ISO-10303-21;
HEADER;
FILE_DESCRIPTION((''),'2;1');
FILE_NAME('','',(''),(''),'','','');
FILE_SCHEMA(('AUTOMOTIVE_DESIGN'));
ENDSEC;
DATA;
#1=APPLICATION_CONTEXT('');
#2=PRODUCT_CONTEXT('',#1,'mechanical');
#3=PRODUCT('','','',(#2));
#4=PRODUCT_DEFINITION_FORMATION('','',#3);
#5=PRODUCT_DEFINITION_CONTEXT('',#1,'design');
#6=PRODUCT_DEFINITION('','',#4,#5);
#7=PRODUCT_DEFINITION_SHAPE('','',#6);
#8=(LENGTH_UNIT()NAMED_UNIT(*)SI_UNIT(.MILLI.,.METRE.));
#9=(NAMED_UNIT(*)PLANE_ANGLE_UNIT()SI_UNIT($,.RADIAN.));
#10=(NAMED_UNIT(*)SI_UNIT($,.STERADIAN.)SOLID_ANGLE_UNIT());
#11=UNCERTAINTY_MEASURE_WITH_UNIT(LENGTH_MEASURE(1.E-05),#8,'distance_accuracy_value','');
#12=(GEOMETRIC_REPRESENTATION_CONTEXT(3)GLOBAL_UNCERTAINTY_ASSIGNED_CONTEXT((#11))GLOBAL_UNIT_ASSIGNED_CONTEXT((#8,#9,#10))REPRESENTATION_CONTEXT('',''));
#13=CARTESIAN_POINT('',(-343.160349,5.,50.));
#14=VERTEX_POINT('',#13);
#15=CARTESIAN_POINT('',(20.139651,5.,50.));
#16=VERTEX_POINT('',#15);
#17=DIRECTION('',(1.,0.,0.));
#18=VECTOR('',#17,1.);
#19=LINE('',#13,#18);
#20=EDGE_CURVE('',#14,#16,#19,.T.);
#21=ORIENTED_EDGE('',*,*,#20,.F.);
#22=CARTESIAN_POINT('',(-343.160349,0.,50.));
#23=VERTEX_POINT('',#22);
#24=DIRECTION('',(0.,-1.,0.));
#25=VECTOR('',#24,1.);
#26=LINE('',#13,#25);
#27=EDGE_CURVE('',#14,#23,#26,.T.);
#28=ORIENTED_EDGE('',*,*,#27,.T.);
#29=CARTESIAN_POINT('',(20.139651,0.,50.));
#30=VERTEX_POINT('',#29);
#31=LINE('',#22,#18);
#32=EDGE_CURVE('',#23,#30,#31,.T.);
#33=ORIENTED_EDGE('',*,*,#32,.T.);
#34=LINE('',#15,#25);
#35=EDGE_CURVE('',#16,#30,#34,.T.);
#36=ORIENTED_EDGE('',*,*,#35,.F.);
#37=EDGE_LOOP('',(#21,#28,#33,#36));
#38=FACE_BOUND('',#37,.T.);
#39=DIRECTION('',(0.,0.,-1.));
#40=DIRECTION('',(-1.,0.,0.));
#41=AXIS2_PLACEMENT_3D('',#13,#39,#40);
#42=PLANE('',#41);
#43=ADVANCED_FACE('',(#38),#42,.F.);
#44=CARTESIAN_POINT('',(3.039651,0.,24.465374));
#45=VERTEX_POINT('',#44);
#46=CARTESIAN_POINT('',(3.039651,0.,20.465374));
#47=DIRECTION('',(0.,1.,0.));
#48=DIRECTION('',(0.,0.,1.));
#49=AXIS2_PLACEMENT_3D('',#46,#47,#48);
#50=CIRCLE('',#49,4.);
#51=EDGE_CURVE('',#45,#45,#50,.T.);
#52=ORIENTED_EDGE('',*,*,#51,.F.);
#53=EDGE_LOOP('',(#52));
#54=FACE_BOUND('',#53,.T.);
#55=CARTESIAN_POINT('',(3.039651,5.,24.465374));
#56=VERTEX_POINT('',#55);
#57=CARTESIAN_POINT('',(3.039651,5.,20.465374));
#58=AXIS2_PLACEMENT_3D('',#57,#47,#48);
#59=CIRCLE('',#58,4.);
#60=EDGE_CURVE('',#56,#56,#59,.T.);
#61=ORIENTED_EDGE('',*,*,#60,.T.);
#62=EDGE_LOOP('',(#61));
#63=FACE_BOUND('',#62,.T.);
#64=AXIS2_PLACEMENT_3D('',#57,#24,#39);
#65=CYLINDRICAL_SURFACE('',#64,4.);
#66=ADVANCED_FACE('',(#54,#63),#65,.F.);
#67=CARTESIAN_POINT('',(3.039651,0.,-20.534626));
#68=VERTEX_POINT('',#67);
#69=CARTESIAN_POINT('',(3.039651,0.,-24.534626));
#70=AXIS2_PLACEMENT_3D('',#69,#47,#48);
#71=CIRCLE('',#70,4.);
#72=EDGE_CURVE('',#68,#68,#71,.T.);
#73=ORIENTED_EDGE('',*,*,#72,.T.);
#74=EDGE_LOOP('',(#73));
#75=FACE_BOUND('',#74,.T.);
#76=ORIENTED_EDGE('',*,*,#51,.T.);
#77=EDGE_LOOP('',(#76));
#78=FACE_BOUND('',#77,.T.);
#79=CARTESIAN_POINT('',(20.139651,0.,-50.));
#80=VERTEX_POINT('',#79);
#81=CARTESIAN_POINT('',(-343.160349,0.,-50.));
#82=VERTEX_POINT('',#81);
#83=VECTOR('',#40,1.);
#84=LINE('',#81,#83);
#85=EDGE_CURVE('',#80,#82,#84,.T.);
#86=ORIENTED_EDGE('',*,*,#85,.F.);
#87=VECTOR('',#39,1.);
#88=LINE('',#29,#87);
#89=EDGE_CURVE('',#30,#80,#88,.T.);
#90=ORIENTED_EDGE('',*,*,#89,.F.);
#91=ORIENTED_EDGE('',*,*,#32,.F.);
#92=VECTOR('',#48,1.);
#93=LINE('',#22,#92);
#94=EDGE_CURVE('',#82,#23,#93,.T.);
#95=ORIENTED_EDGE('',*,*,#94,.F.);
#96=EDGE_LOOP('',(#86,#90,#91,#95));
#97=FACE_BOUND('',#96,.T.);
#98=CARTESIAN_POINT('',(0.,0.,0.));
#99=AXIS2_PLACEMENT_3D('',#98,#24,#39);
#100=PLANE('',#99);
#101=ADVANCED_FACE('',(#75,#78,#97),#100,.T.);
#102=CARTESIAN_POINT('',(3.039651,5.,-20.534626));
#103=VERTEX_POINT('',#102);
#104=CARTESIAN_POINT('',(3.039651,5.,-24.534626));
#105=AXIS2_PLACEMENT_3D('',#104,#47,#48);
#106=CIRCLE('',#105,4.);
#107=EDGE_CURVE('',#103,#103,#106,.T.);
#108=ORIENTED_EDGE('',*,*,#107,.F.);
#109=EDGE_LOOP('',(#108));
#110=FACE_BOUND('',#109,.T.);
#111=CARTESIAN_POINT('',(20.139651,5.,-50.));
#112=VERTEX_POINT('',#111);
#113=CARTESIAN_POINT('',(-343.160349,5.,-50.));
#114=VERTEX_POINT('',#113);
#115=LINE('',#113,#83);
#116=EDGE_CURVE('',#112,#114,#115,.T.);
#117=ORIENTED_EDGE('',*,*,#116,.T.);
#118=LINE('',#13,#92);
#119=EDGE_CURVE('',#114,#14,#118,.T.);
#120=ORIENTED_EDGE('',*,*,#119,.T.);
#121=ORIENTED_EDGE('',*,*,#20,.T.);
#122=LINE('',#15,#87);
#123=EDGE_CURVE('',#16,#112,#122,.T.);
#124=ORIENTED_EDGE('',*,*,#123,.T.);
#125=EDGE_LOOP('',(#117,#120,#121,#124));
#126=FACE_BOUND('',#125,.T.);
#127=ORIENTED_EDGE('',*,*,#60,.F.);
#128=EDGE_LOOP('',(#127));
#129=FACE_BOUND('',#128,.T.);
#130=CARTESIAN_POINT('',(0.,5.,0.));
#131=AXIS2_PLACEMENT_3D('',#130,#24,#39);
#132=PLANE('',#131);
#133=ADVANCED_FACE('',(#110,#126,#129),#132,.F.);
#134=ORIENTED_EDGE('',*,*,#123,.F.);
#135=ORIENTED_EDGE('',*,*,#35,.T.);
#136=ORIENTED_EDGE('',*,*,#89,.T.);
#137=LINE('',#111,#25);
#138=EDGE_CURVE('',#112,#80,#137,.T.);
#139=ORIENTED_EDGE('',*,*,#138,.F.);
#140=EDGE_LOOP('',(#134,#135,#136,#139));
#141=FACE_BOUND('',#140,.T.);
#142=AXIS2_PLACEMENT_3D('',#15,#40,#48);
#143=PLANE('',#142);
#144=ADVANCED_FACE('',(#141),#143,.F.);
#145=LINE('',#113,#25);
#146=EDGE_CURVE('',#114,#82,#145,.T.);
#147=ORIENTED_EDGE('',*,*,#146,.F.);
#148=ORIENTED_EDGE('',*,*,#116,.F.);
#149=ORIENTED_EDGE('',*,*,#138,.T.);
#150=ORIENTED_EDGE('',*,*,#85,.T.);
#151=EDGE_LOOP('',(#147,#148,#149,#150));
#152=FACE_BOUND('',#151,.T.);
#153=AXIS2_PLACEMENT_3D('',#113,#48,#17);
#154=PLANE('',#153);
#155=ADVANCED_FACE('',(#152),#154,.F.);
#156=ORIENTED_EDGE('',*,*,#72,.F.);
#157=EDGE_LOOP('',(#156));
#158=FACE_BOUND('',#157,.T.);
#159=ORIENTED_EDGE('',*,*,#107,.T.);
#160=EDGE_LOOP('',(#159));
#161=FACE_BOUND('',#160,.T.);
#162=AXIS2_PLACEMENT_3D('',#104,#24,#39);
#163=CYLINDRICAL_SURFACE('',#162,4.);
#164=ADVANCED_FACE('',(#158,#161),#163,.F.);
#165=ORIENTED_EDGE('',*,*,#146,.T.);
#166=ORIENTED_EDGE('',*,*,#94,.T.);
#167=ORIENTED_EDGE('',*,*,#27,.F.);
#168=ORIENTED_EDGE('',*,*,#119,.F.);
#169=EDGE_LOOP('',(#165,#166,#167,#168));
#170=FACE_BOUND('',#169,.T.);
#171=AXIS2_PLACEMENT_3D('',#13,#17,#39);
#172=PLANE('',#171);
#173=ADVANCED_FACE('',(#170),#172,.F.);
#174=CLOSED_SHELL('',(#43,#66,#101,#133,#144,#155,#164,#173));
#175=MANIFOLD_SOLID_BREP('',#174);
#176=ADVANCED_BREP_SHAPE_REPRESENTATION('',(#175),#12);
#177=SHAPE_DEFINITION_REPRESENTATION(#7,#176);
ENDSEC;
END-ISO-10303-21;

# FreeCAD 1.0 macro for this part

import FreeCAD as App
import Part
import Sketcher

V = App.Vector
Q = App.Units.Quantity

doc = App.newDocument("Part")
body = doc.addObject("PartDesign::Body", "Body")

# Sketch on XZ plane
sketch1 = body.newObject("Sketcher::SketchObject", "Sketch")
sketch1.AttachmentSupport = (doc.getObject("XZ_Plane"), [""])
sketch1.MapMode = "FlatFace"
sketch1.addGeometry(Part.LineSegment(V(-343.2, -50, 0), V(-343.2, 50, 0)), False)
sketch1.addGeometry(Part.LineSegment(V(-343.2, 50, 0), V(20.1, 50, 0)), False)
sketch1.addGeometry(Part.LineSegment(V(20.1, 50, 0), V(20.1, -50, 0)), False)
sketch1.addGeometry(Part.LineSegment(V(20.1, -50, 0), V(-343.2, -50, 0)), False)
sketch1.addGeometry(Part.Circle(V(3, 20.5, 0), V(0, 0, 1), 4), False)
sketch1.addGeometry(Part.Circle(V(3, -24.5, 0), V(0, 0, 1), 4), False)
sketch1.addConstraint(Sketcher.Constraint("Coincident", 0, 2, 1, 1))
sketch1.addConstraint(Sketcher.Constraint("Coincident", 1, 2, 2, 1))
sketch1.addConstraint(Sketcher.Constraint("Coincident", 2, 2, 3, 1))
sketch1.addConstraint(Sketcher.Constraint("Coincident", 3, 2, 0, 1))
sketch1.addConstraint(Sketcher.Constraint("Vertical", 0))
sketch1.addConstraint(Sketcher.Constraint("Horizontal", 1))
sketch1.addConstraint(Sketcher.Constraint("Vertical", 2))
sketch1.addConstraint(Sketcher.Constraint("Horizontal", 3))
sketch1.addConstraint(Sketcher.Constraint("Equal", 4, 5))
sketch1.addConstraint(Sketcher.Constraint("Vertical", 4, 3, 5, 3))
sketch1.addConstraint(Sketcher.Constraint("Diameter", 4, Q("8 mm")))
sketch1.addConstraint(Sketcher.Constraint("DistanceY", 0, 1, 0, 2, Q("100 mm")))
sketch1.addConstraint(Sketcher.Constraint("DistanceX", 1, 1, 1, 2, Q("363.3 mm")))
sketch1.addConstraint(Sketcher.Constraint("DistanceY", -1, 1, 0, 2, Q("50 mm")))
sketch1.addConstraint(Sketcher.Constraint("DistanceY", 5, 3, 4, 3, Q("45 mm")))
sketch1.addConstraint(Sketcher.Constraint("DistanceX", 0, 2, 4, 3, Q("346.2 mm")))
sketch1.addConstraint(Sketcher.Constraint("DistanceX", -1, 1, 4, 3, Q("3.039651 mm")))
sketch1.addConstraint(Sketcher.Constraint("DistanceY", -1, 1, 4, 3, Q("20.465374 mm")))
pad1 = body.newObject("PartDesign::Pad", "Pad")
pad1.Profile = sketch1
pad1.Length = 5
pad1.Reversed = True

doc.recompute()
